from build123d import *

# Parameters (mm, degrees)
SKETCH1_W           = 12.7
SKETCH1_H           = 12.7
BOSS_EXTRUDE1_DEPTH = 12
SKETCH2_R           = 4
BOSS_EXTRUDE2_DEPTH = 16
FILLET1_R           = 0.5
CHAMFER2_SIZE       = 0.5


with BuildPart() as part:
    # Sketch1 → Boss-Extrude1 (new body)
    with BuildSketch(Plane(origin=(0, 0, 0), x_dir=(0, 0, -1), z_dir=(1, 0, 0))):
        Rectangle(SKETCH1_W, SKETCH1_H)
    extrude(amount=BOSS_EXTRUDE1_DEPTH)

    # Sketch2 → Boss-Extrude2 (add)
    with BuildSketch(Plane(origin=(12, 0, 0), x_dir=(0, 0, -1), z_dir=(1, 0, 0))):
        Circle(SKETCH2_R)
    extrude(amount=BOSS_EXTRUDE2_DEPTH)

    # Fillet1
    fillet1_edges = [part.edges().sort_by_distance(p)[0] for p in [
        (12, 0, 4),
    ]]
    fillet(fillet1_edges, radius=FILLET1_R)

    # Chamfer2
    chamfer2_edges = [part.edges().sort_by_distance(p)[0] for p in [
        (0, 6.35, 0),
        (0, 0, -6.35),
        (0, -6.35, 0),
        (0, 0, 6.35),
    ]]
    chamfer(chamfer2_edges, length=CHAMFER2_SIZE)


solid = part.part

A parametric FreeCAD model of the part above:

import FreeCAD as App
import Part
import Sketcher

V = App.Vector
Q = App.Units.Quantity


def edges_at(feature, points):
    """Names of the edges that pass closest to the given points."""
    edges = feature.Shape.Edges
    near = lambda p: min(range(len(edges)), key=lambda i: edges[i].distToShape(Part.Vertex(*p))[0])
    return sorted({f"Edge{near(p) + 1}" for p in points})


def add_polygon(sketch, points):
    """Adds a closed chain of lines whose ends are joined by coincident constraints."""
    first, n = sketch.GeometryCount, len(points)
    for a, b in zip(points, points[1:] + points[:1]):
        sketch.addGeometry(Part.LineSegment(App.Vector(*a, 0), App.Vector(*b, 0)), False)
    for i in range(n):
        sketch.addConstraint(Sketcher.Constraint("Coincident", first + i, 2, first + (i + 1) % n, 1))

doc = App.newDocument("Part")
params = doc.addObject("Spreadsheet::Sheet", "Params")
for row, (alias, value) in enumerate([
    ("sketch1_width", "12.7 mm"),
    ("pad1_length", "12 mm"),
    ("sketch2_diameter", "8 mm"),
    ("pad2_length", "16 mm"),
    ("fillet_radius", "0.5 mm"),
    ("chamfer_size", "0.5 mm"),
], start=1):
    params.set(f"A{row}", alias)
    params.set(f"B{row}", "=" + value)
    params.setAlias(f"B{row}", alias)

body = doc.addObject("PartDesign::Body", "Body")

# Sketch on YZ plane
sketch1 = body.newObject("Sketcher::SketchObject", "Sketch")
sketch1.AttachmentSupport = (doc.getObject("YZ_Plane"), [""])
sketch1.MapMode = "FlatFace"
add_polygon(sketch1, [(6, 6), (-6, 6), (-6, -6), (6, -6)])  # lines 0-3
sketch1.addConstraint([
    Sketcher.Constraint("Horizontal", 0),
    Sketcher.Constraint("Vertical", 1),
    Sketcher.Constraint("Horizontal", 2),
    Sketcher.Constraint("Vertical", 3),
    Sketcher.Constraint("Symmetric", 0, 2, 2, 2, -1, 1),
    Sketcher.Constraint("Equal", 2, 1),
    Sketcher.Constraint("DistanceX", 0, 2, 0, 1, Q("12.7 mm")),
])
sketch1.setExpression("Constraints[10]", "Params.sketch1_width")
pad1 = body.newObject("PartDesign::Pad", "Pad")
pad1.Profile = sketch1
pad1.setExpression("Length", "Params.pad1_length")

# Sketch on YZ plane
sketch2 = body.newObject("Sketcher::SketchObject", "Sketch001")
sketch2.AttachmentSupport = (doc.getObject("YZ_Plane"), [""])
sketch2.MapMode = "FlatFace"
sketch2.AttachmentOffset = App.Placement(V(0, 0, 12), App.Rotation())
sketch2.addGeometry(Part.Circle(V(0, 0, 0), V(0, 0, 1), 4), False)
sketch2.addConstraint([
    Sketcher.Constraint("Coincident", 0, 3, -1, 1),
    Sketcher.Constraint("Diameter", 0, Q("8 mm")),
])
sketch2.setExpression("Constraints[1]", "Params.sketch2_diameter")
pad2 = body.newObject("PartDesign::Pad", "Pad001")
pad2.Profile = sketch2
pad2.setExpression("Length", "Params.pad2_length")
doc.recompute()

fillet = body.newObject("PartDesign::Fillet", "Fillet")
fillet.Base = (pad2, edges_at(pad2, [(12, 0, 4)]))
fillet.setExpression("Radius", "Params.fillet_radius")
doc.recompute()

chamfer = body.newObject("PartDesign::Chamfer", "Chamfer")
chamfer.Base = (fillet, edges_at(fillet, [
    (0, 6.35, 0),
    (0, 0, -6.35),
    (0, -6.35, 0),
    (0, 0, 6.35),
]))
chamfer.setExpression("Size", "Params.chamfer_size")

doc.recompute()
